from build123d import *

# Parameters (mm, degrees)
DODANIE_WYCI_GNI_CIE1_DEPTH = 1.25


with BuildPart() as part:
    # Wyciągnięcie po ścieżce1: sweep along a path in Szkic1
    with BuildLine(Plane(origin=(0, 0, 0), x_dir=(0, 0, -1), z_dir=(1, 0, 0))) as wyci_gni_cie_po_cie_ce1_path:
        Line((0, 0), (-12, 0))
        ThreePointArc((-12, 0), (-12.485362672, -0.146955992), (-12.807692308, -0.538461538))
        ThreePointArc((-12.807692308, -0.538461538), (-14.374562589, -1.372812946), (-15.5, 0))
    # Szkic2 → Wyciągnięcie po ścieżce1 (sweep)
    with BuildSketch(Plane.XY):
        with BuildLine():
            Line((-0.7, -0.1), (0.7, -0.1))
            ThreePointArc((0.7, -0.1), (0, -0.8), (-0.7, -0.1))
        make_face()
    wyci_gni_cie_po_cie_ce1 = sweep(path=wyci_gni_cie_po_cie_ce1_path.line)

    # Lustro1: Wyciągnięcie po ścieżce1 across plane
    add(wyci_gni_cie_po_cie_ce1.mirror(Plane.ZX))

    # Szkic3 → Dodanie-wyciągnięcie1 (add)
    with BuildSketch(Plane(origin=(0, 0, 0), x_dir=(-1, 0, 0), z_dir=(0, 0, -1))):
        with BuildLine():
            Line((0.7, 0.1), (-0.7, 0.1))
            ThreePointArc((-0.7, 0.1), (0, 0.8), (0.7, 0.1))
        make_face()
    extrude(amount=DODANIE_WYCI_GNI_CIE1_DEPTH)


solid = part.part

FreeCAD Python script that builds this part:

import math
import FreeCAD as App
import Part
import Sketcher

doc = App.newDocument("Part")
body = doc.addObject("PartDesign::Body", "Body")

# Sketch on XY plane
sketch1 = doc.addObject("Sketcher::SketchObject", "Sketch")
body.addObject(sketch1)
sketch1.AttachmentSupport = (doc.XY_Plane, [""])
sketch1.MapMode = "FlatFace"
sketch1.addGeometry(Part.LineSegment(App.Vector(0.7, -0.1, 0), App.Vector(-0.7, -0.1, 0)), False)
sketch1.addGeometry(Part.ArcOfCircle(Part.Circle(App.Vector(0, -0.1, 0), App.Vector(0, 0, 1), 0.7), math.radians(180), math.radians(360)), False)
sketch1.addConstraint(Sketcher.Constraint("Coincident", 0, 1, 1, 2))
sketch1.addConstraint(Sketcher.Constraint("Coincident", 1, 1, 0, 2))
sketch1.addConstraint(Sketcher.Constraint("Horizontal", 0))
sketch1.addConstraint(Sketcher.Constraint("PointOnObject", 1, 3, -2))
sketch1.addConstraint(Sketcher.Constraint("Horizontal", 1, 3, 0, 1))
sketch1.addConstraint(Sketcher.Constraint("Radius", 1, 0.7))
sketch1.addConstraint(Sketcher.Constraint("DistanceY", 1, 3, -1, 1, 0.1))

# Sketch on YZ plane
sketch2 = doc.addObject("Sketcher::SketchObject", "Sketch001")
body.addObject(sketch2)
sketch2.AttachmentSupport = (doc.YZ_Plane, [""])
sketch2.MapMode = "FlatFace"
sketch2.addGeometry(Part.LineSegment(App.Vector(0, 0, 0), App.Vector(0, 12, 0)), False)
sketch2.addGeometry(Part.ArcOfCircle(Part.Circle(App.Vector(-0.9, 12, 0), App.Vector(0, 0, 1), 0.9), math.radians(0), math.radians(67)), False)
sketch2.addGeometry(Part.ArcOfCircle(Part.Circle(App.Vector(0, 14.1, 0), App.Vector(0, 0, 1), 1.4), math.radians(90), math.radians(247)), False)
sketch2.addConstraint(Sketcher.Constraint("Tangent", 0, 2, 1, 1))
sketch2.addConstraint(Sketcher.Constraint("Tangent", 1, 2, 2, 2))
sketch2.addConstraint(Sketcher.Constraint("Vertical", 0))
sketch2.addConstraint(Sketcher.Constraint("Coincident", 0, 1, -1, 1))
sketch2.addConstraint(Sketcher.Constraint("PointOnObject", 2, 3, -2))
sketch2.addConstraint(Sketcher.Constraint("PointOnObject", 2, 1, -2))
sketch2.addConstraint(Sketcher.Constraint("Radius", 2, 1.4))
sketch2.addConstraint(Sketcher.Constraint("DistanceY", 0, 1, 0, 2, 12.0))
sketch2.addConstraint(Sketcher.Constraint("Radius", 1, 0.875))
doc.recompute()

additivepipe = doc.addObject("PartDesign::AdditivePipe", "AdditivePipe")
body.addObject(additivepipe)
additivepipe.Profile = sketch1
additivepipe.Spine = (sketch2, ["Edge1", "Edge2", "Edge3"])
doc.recompute()

mirrored = doc.addObject("PartDesign::Mirrored", "Mirrored")
body.addObject(mirrored)
mirrored.Originals = [additivepipe]
mirrored.MirrorPlane = (doc.XZ_Plane, [""])
body.Tip = mirrored

# Sketch on XY plane
sketch3 = doc.addObject("Sketcher::SketchObject", "Sketch002")
body.addObject(sketch3)
sketch3.AttachmentSupport = (doc.XY_Plane, [""])
sketch3.MapMode = "FlatFace"
sketch3.addGeometry(Part.LineSegment(App.Vector(0.7, 0.1, 0), App.Vector(-0.7, 0.1, 0)), False)
sketch3.addGeometry(Part.ArcOfCircle(Part.Circle(App.Vector(0, 0.1, 0), App.Vector(0, 0, 1), 0.7), math.radians(0), math.radians(180)), False)
sketch3.addConstraint(Sketcher.Constraint("Coincident", 0, 1, 1, 1))
sketch3.addConstraint(Sketcher.Constraint("Coincident", 1, 2, 0, 2))
sketch3.addConstraint(Sketcher.Constraint("Horizontal", 0))
sketch3.addConstraint(Sketcher.Constraint("PointOnObject", 1, 3, -2))
sketch3.addConstraint(Sketcher.Constraint("Horizontal", 1, 3, 0, 1))
sketch3.addConstraint(Sketcher.Constraint("Radius", 1, 0.7))
sketch3.addConstraint(Sketcher.Constraint("DistanceY", -1, 1, 1, 3, 0.1))
pad1 = doc.addObject("PartDesign::Pad", "Pad")
body.addObject(pad1)
pad1.Profile = sketch3
pad1.Length = 1.25
pad1.Reversed = True

doc.recompute()
